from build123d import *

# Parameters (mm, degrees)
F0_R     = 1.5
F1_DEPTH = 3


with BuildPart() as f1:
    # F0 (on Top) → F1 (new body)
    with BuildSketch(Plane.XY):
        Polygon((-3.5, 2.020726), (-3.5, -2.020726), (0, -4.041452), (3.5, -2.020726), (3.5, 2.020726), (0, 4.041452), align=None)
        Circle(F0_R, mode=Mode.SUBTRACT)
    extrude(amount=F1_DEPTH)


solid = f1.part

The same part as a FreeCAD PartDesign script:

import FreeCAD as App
import Part
import Sketcher
from FreeCAD import Vector
Q = App.Units.Quantity

doc = App.newDocument("Part")
body = doc.addObject("PartDesign::Body", "Body")

# Sketch on XY plane
sketch1 = doc.addObject("Sketcher::SketchObject", "Sketch")
body.addObject(sketch1)
sketch1.AttachmentSupport = (doc.XY_Plane, [""])
sketch1.MapMode = "FlatFace"
sketch1.addGeometry([
    Part.LineSegment(Vector(-3.5, 2, 0), Vector(-3.5, -2, 0)),  # 0
    Part.LineSegment(Vector(-3.5, -2, 0), Vector(0, -4, 0)),  # 1
    Part.LineSegment(Vector(0, -4, 0), Vector(3.5, -2, 0)),  # 2
    Part.LineSegment(Vector(3.5, -2, 0), Vector(3.5, 2, 0)),  # 3
    Part.LineSegment(Vector(3.5, 2, 0), Vector(0, 4, 0)),  # 4
    Part.LineSegment(Vector(0, 4, 0), Vector(-3.5, 2, 0)),  # 5
    Part.Circle(Vector(0, 0, 0), Vector(0, 0, 1), 1.5),  # 6
], False)
sketch1.addConstraint([
    Sketcher.Constraint("Coincident", 0, 2, 1, 1),
    Sketcher.Constraint("Coincident", 1, 2, 2, 1),
    Sketcher.Constraint("Coincident", 2, 2, 3, 1),
    Sketcher.Constraint("Coincident", 3, 2, 4, 1),
    Sketcher.Constraint("Coincident", 4, 2, 5, 1),
    Sketcher.Constraint("Coincident", 5, 2, 0, 1),
    Sketcher.Constraint("Vertical", 0),
    Sketcher.Constraint("Vertical", 3),
    Sketcher.Constraint("Coincident", 6, 3, -1, 1),
    Sketcher.Constraint("Symmetric", 0, 2, 3, 2, -1, 1),
    Sketcher.Constraint("Symmetric", 1, 2, 4, 2, -1, 1),
    Sketcher.Constraint("PointOnObject", 1, 2, -2),
    Sketcher.Constraint("Parallel", 2, 5),
    Sketcher.Constraint("Horizontal", 0, 2, 2, 2),
    Sketcher.Constraint("Diameter", 6, 3.0),
    Sketcher.Constraint("Angle", 1, Q("-30.000001 deg")),
    Sketcher.Constraint("DistanceX", 0, 2, 2, 2, 7.0),
    Sketcher.Constraint("DistanceY", 0, 2, 0, 1, 4.041452),
])
pad1 = doc.addObject("PartDesign::Pad", "Pad")
body.addObject(pad1)
pad1.Profile = sketch1
pad1.Length = 3

doc.recompute()
